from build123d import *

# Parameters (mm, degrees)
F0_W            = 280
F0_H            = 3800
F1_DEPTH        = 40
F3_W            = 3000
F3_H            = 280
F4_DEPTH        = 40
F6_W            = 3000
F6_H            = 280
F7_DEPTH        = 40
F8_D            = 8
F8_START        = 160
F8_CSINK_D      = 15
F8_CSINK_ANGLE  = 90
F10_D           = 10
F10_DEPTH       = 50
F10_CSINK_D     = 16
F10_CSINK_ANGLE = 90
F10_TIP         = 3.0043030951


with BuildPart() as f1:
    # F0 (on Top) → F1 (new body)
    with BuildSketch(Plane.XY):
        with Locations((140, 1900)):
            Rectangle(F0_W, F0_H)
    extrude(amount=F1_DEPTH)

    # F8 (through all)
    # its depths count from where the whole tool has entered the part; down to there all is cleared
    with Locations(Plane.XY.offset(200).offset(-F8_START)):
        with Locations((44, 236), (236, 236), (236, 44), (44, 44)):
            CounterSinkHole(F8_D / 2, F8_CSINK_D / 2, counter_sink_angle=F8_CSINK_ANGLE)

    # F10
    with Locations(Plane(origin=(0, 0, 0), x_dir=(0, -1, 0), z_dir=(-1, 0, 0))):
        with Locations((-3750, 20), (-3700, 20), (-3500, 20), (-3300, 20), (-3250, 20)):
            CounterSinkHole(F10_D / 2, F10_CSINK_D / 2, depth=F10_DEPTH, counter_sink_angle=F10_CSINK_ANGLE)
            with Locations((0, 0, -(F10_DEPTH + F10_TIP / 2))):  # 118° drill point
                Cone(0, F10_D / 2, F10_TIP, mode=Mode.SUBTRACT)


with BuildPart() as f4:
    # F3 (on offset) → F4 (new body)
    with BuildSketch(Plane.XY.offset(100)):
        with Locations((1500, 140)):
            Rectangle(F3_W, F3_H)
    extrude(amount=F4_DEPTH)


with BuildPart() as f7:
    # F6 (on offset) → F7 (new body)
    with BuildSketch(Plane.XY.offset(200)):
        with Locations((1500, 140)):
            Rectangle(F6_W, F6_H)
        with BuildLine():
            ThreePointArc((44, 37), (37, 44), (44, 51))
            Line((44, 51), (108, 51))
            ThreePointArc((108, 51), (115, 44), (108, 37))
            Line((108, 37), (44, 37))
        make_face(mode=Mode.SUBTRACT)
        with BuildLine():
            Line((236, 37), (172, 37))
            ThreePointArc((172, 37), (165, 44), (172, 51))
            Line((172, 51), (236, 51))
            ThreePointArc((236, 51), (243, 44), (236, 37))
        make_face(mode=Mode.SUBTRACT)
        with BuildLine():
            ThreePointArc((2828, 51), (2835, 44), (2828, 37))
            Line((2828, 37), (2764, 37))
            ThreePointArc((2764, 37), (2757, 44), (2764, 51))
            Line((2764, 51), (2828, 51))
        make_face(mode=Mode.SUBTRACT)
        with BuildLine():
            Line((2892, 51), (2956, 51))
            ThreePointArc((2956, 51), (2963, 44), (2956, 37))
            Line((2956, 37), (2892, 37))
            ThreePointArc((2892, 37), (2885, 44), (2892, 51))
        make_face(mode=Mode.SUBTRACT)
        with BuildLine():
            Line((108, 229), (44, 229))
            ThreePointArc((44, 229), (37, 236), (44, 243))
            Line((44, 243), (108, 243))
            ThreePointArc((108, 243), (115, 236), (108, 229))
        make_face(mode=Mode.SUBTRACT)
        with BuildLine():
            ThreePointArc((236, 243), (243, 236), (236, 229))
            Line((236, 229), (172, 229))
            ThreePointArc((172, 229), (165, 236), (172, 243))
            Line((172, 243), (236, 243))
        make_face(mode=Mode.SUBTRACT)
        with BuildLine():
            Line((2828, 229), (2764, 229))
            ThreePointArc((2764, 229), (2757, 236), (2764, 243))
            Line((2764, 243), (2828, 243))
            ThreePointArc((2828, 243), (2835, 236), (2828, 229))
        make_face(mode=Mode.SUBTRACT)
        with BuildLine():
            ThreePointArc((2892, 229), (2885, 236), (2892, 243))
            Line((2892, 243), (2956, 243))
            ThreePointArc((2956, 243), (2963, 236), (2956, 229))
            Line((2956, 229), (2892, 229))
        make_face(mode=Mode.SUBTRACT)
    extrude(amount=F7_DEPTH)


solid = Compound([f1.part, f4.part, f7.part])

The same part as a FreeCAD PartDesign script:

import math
import FreeCAD as App
import Part
import Sketcher

V = App.Vector


def add_polygon(sketch, points):
    """Adds a closed chain of lines whose ends are joined by coincident constraints."""
    first, n = sketch.GeometryCount, len(points)
    for a, b in zip(points, points[1:] + points[:1]):
        sketch.addGeometry(Part.LineSegment(App.Vector(*a, 0), App.Vector(*b, 0)), False)
    for i in range(n):
        sketch.addConstraint(Sketcher.Constraint("Coincident", first + i, 2, first + (i + 1) % n, 1))

doc = App.newDocument("Part")
body = doc.addObject("PartDesign::Body", "Body")

# Sketch on XY plane
sketch1 = doc.addObject("Sketcher::SketchObject", "Sketch")
body.addObject(sketch1)
sketch1.AttachmentSupport = (doc.XY_Plane, [""])
sketch1.MapMode = "FlatFace"
add_polygon(sketch1, [(0, 3800), (0, 0), (280, 0), (280, 3800)])  # lines 0-3
sketch1.addConstraint([
    Sketcher.Constraint("Vertical", 0),
    Sketcher.Constraint("Horizontal", 1),
    Sketcher.Constraint("Vertical", 2),
    Sketcher.Constraint("Horizontal", 3),
    Sketcher.Constraint("Coincident", 0, 2, -1, 1),
    Sketcher.Constraint("DistanceX", 1, 1, 1, 2, 280.0),
    Sketcher.Constraint("DistanceY", 0, 2, 0, 1, 3800.0),
])
pad1 = doc.addObject("PartDesign::Pad", "Pad")
body.addObject(pad1)
pad1.Profile = sketch1
pad1.Length = 40

# Sketch on XY plane
sketch2 = doc.addObject("Sketcher::SketchObject", "Sketch001")
body.addObject(sketch2)
sketch2.AttachmentSupport = (doc.XY_Plane, [""])
sketch2.MapMode = "FlatFace"
sketch2.AttachmentOffset = App.Placement(V(0, 0, 40), App.Rotation())
sketch2.addGeometry([
    Part.Circle(V(44, 236, 0), V(0, 0, 1), 4),
    Part.Circle(V(236, 236, 0), V(0, 0, 1), 4),
    Part.Circle(V(236, 44, 0), V(0, 0, 1), 4),
    Part.Circle(V(44, 44, 0), V(0, 0, 1), 4),
], False)
sketch2.addConstraint([
    Sketcher.Constraint("Equal", 0, 1),
    Sketcher.Constraint("Equal", 1, 2),
    Sketcher.Constraint("Equal", 2, 3),
    Sketcher.Constraint("Horizontal", 0, 3, 1, 3),
    Sketcher.Constraint("Horizontal", 2, 3, 3, 3),
    Sketcher.Constraint("Vertical", 1, 3, 2, 3),
    Sketcher.Constraint("Vertical", 0, 3, 3, 3),
    Sketcher.Constraint("Diameter", 0, 8.0),
    Sketcher.Constraint("DistanceX", -1, 1, 0, 3, 44.0),
    Sketcher.Constraint("DistanceY", -1, 1, 0, 3, 236.0),
    Sketcher.Constraint("DistanceX", -1, 1, 1, 3, 236.0),
    Sketcher.Constraint("DistanceY", -1, 1, 2, 3, 44.0),
])
doc.recompute()
hole = doc.addObject("PartDesign::Hole", "Hole")
body.addObject(hole)
hole.Profile = sketch2
hole.ThreadType = "None"
hole.Diameter = 8
hole.DepthType = "ThroughAll"
hole.HoleCutType = "Countersink"
hole.HoleCutDiameter = 15
hole.HoleCutCountersinkAngle = 90

# Sketch on YZ plane
sketch3 = doc.addObject("Sketcher::SketchObject", "Sketch002")
body.addObject(sketch3)
sketch3.AttachmentSupport = (doc.YZ_Plane, [""])
sketch3.MapMode = "FlatFace"
sketch3.addGeometry([
    Part.Circle(V(3750, 20, 0), V(0, 0, 1), 5),  # 0
    Part.Circle(V(3700, 20, 0), V(0, 0, 1), 5),  # 1
    Part.Circle(V(3500, 20, 0), V(0, 0, 1), 5),  # 2
    Part.Circle(V(3300, 20, 0), V(0, 0, 1), 5),  # 3
    Part.Circle(V(3250, 20, 0), V(0, 0, 1), 5),  # 4
], False)
sketch3.addConstraint([
    Sketcher.Constraint("Equal", 0, 1),
    Sketcher.Constraint("Equal", 1, 2),
    Sketcher.Constraint("Equal", 2, 3),
    Sketcher.Constraint("Equal", 3, 4),
    Sketcher.Constraint("Horizontal", 0, 3, 1, 3),
    Sketcher.Constraint("Horizontal", 1, 3, 2, 3),
    Sketcher.Constraint("Horizontal", 2, 3, 3, 3),
    Sketcher.Constraint("Horizontal", 3, 3, 4, 3),
    Sketcher.Constraint("Diameter", 0, 10.0),
    Sketcher.Constraint("DistanceX", -1, 1, 0, 3, 3750.0),
    Sketcher.Constraint("DistanceY", -1, 1, 0, 3, 20.0),
    Sketcher.Constraint("DistanceX", -1, 1, 1, 3, 3700.0),
    Sketcher.Constraint("DistanceX", -1, 1, 2, 3, 3500.0),
    Sketcher.Constraint("DistanceX", -1, 1, 3, 3, 3300.0),
    Sketcher.Constraint("DistanceX", -1, 1, 4, 3, 3250.0),
])
doc.recompute()
hole2 = doc.addObject("PartDesign::Hole", "Hole001")
body.addObject(hole2)
hole2.Profile = sketch3
hole2.ThreadType = "None"
hole2.Diameter = 10
hole2.DepthType = "Dimension"
hole2.Depth = 50
hole2.DrillPoint = "Angled"
hole2.DrillPointAngle = 118
hole2.HoleCutType = "Countersink"
hole2.HoleCutDiameter = 16
hole2.HoleCutCountersinkAngle = 90
hole2.Reversed = True
body2 = doc.addObject("PartDesign::Body", "Body001")

# Sketch on XY plane
sketch4 = doc.addObject("Sketcher::SketchObject", "Sketch003")
body2.addObject(sketch4)
sketch4.AttachmentSupport = (doc.getObject("XY_Plane001"), [""])
sketch4.MapMode = "FlatFace"
sketch4.AttachmentOffset = App.Placement(V(0, 0, 100), App.Rotation())
add_polygon(sketch4, [(0, 280), (0, 0), (3000, 0), (3000, 280)])  # lines 0-3
sketch4.addConstraint([
    Sketcher.Constraint("Vertical", 0),
    Sketcher.Constraint("Horizontal", 1),
    Sketcher.Constraint("Vertical", 2),
    Sketcher.Constraint("Horizontal", 3),
    Sketcher.Constraint("Coincident", 0, 2, -1, 1),
    Sketcher.Constraint("DistanceX", 1, 1, 1, 2, 3000.0),
    Sketcher.Constraint("DistanceY", 0, 2, 0, 1, 280.0),
])
pad2 = doc.addObject("PartDesign::Pad", "Pad001")
body2.addObject(pad2)
pad2.Profile = sketch4
pad2.Length = 40
body3 = doc.addObject("PartDesign::Body", "Body002")

# Sketch on XY plane
sketch5 = doc.addObject("Sketcher::SketchObject", "Sketch004")
body3.addObject(sketch5)
sketch5.AttachmentSupport = (doc.getObject("XY_Plane002"), [""])
sketch5.MapMode = "FlatFace"
sketch5.AttachmentOffset = App.Placement(V(0, 0, 200), App.Rotation())
add_polygon(sketch5, [(0, 280), (0, 0), (3000, 0), (3000, 280)])  # lines 0-3
sketch5.addGeometry(Part.LineSegment(V(108, 37, 0), V(44, 37, 0)), False)  # 4
sketch5.addGeometry(Part.ArcOfCircle(Part.Circle(V(44, 44, 0), V(0, 0, 1), 7), math.radians(90), math.radians(270)), False)  # 5
sketch5.addGeometry(Part.LineSegment(V(44, 51, 0), V(108, 51, 0)), False)  # 6
sketch5.addGeometry(Part.ArcOfCircle(Part.Circle(V(108, 44, 0), V(0, 0, 1), 7), math.radians(-90), math.radians(90)), False)  # 7
sketch5.addGeometry(Part.ArcOfCircle(Part.Circle(V(236, 44, 0), V(0, 0, 1), 7), math.radians(-90), math.radians(90)), False)  # 8
sketch5.addGeometry(Part.LineSegment(V(236, 37, 0), V(172, 37, 0)), False)  # 9
sketch5.addGeometry(Part.ArcOfCircle(Part.Circle(V(172, 44, 0), V(0, 0, 1), 7), math.radians(90), math.radians(270)), False)  # 10
sketch5.addGeometry(Part.LineSegment(V(172, 51, 0), V(236, 51, 0)), False)  # 11
sketch5.addGeometry(Part.LineSegment(V(2764, 51, 0), V(2828, 51, 0)), False)  # 12
sketch5.addGeometry(Part.ArcOfCircle(Part.Circle(V(2828, 44, 0), V(0, 0, 1), 7), math.radians(-90), math.radians(90)), False)  # 13
sketch5.addGeometry(Part.LineSegment(V(2828, 37, 0), V(2764, 37, 0)), False)  # 14
sketch5.addGeometry(Part.ArcOfCircle(Part.Circle(V(2764, 44, 0), V(0, 0, 1), 7), math.radians(90), math.radians(270)), False)  # 15
sketch5.addGeometry(Part.ArcOfCircle(Part.Circle(V(2892, 44, 0), V(0, 0, 1), 7), math.radians(90), math.radians(270)), False)  # 16
sketch5.addGeometry(Part.LineSegment(V(2892, 51, 0), V(2956, 51, 0)), False)  # 17
sketch5.addGeometry(Part.ArcOfCircle(Part.Circle(V(2956, 44, 0), V(0, 0, 1), 7), math.radians(-90), math.radians(90)), False)  # 18
sketch5.addGeometry(Part.LineSegment(V(2956, 37, 0), V(2892, 37, 0)), False)  # 19
sketch5.addGeometry(Part.ArcOfCircle(Part.Circle(V(108, 236, 0), V(0, 0, 1), 7), math.radians(-90), math.radians(90)), False)  # 20
sketch5.addGeometry(Part.LineSegment(V(108, 229, 0), V(44, 229, 0)), False)  # 21
sketch5.addGeometry(Part.ArcOfCircle(Part.Circle(V(44, 236, 0), V(0, 0, 1), 7), math.radians(90), math.radians(270)), False)  # 22
sketch5.addGeometry(Part.LineSegment(V(44, 243, 0), V(108, 243, 0)), False)  # 23
sketch5.addGeometry(Part.LineSegment(V(172, 243, 0), V(236, 243, 0)), False)  # 24
sketch5.addGeometry(Part.ArcOfCircle(Part.Circle(V(236, 236, 0), V(0, 0, 1), 7), math.radians(-90), math.radians(90)), False)  # 25
sketch5.addGeometry(Part.LineSegment(V(236, 229, 0), V(172, 229, 0)), False)  # 26
sketch5.addGeometry(Part.ArcOfCircle(Part.Circle(V(172, 236, 0), V(0, 0, 1), 7), math.radians(90), math.radians(270)), False)  # 27
sketch5.addGeometry(Part.ArcOfCircle(Part.Circle(V(2828, 236, 0), V(0, 0, 1), 7), math.radians(-90), math.radians(90)), False)  # 28
sketch5.addGeometry(Part.LineSegment(V(2828, 229, 0), V(2764, 229, 0)), False)  # 29
sketch5.addGeometry(Part.ArcOfCircle(Part.Circle(V(2764, 236, 0), V(0, 0, 1), 7), math.radians(90), math.radians(270)), False)  # 30
sketch5.addGeometry(Part.LineSegment(V(2764, 243, 0), V(2828, 243, 0)), False)  # 31
sketch5.addGeometry(Part.LineSegment(V(2956, 229, 0), V(2892, 229, 0)), False)  # 32
sketch5.addGeometry(Part.ArcOfCircle(Part.Circle(V(2892, 236, 0), V(0, 0, 1), 7), math.radians(90), math.radians(270)), False)  # 33
sketch5.addGeometry(Part.LineSegment(V(2892, 243, 0), V(2956, 243, 0)), False)  # 34
sketch5.addGeometry(Part.ArcOfCircle(Part.Circle(V(2956, 236, 0), V(0, 0, 1), 7), math.radians(-90), math.radians(90)), False)  # 35
sketch5.addConstraint([
    Sketcher.Constraint("Tangent", 4, 2, 5, 2),
    Sketcher.Constraint("Tangent", 5, 1, 6, 1),
    Sketcher.Constraint("Tangent", 6, 2, 7, 2),
    Sketcher.Constraint("Tangent", 7, 1, 4, 1),
    Sketcher.Constraint("Tangent", 8, 1, 9, 1),
    Sketcher.Constraint("Tangent", 9, 2, 10, 2),
    Sketcher.Constraint("Tangent", 10, 1, 11, 1),
    Sketcher.Constraint("Tangent", 11, 2, 8, 2),
    Sketcher.Constraint("Tangent", 12, 2, 13, 2),
    Sketcher.Constraint("Tangent", 13, 1, 14, 1),
    Sketcher.Constraint("Tangent", 14, 2, 15, 2),
    Sketcher.Constraint("Tangent", 15, 1, 12, 1),
    Sketcher.Constraint("Tangent", 16, 1, 17, 1),
    Sketcher.Constraint("Tangent", 17, 2, 18, 2),
    Sketcher.Constraint("Tangent", 18, 1, 19, 1),
    Sketcher.Constraint("Tangent", 19, 2, 16, 2),
    Sketcher.Constraint("Tangent", 20, 1, 21, 1),
    Sketcher.Constraint("Tangent", 21, 2, 22, 2),
    Sketcher.Constraint("Tangent", 22, 1, 23, 1),
    Sketcher.Constraint("Tangent", 23, 2, 20, 2),
    Sketcher.Constraint("Tangent", 24, 2, 25, 2),
    Sketcher.Constraint("Tangent", 25, 1, 26, 1),
    Sketcher.Constraint("Tangent", 26, 2, 27, 2),
    Sketcher.Constraint("Tangent", 27, 1, 24, 1),
    Sketcher.Constraint("Tangent", 28, 1, 29, 1),
    Sketcher.Constraint("Tangent", 29, 2, 30, 2),
    Sketcher.Constraint("Tangent", 30, 1, 31, 1),
    Sketcher.Constraint("Tangent", 31, 2, 28, 2),
    Sketcher.Constraint("Tangent", 32, 2, 33, 2),
    Sketcher.Constraint("Tangent", 33, 1, 34, 1),
    Sketcher.Constraint("Tangent", 34, 2, 35, 2),
    Sketcher.Constraint("Tangent", 35, 1, 32, 1),
    Sketcher.Constraint("Vertical", 0),
    Sketcher.Constraint("Horizontal", 1),
    Sketcher.Constraint("Vertical", 2),
    Sketcher.Constraint("Horizontal", 3),
    Sketcher.Constraint("Horizontal", 4),
    Sketcher.Constraint("Horizontal", 6),
    Sketcher.Constraint("Horizontal", 9),
    Sketcher.Constraint("Horizontal", 11),
    Sketcher.Constraint("Horizontal", 12),
    Sketcher.Constraint("Horizontal", 14),
    Sketcher.Constraint("Horizontal", 17),
    Sketcher.Constraint("Horizontal", 19),
    Sketcher.Constraint("Horizontal", 21),
    Sketcher.Constraint("Horizontal", 23),
    Sketcher.Constraint("Horizontal", 24),
    Sketcher.Constraint("Horizontal", 26),
    Sketcher.Constraint("Horizontal", 29),
    Sketcher.Constraint("Horizontal", 31),
    Sketcher.Constraint("Horizontal", 32),
    Sketcher.Constraint("Horizontal", 34),
    Sketcher.Constraint("Coincident", 0, 2, -1, 1),
    Sketcher.Constraint("Equal", 7, 8),
    Sketcher.Constraint("Equal", 10, 13),
    Sketcher.Constraint("Equal", 15, 16),
    Sketcher.Constraint("Equal", 18, 20),
    Sketcher.Constraint("Equal", 22, 25),
    Sketcher.Constraint("Equal", 27, 28),
    Sketcher.Constraint("Equal", 30, 33),
    Sketcher.Constraint("Horizontal", 7, 3, 8, 3),
    Sketcher.Constraint("Horizontal", 10, 3, 13, 3),
    Sketcher.Constraint("Horizontal", 15, 3, 16, 3),
    Sketcher.Constraint("Horizontal", 22, 3, 25, 3),
    Sketcher.Constraint("Horizontal", 27, 3, 28, 3),
    Sketcher.Constraint("Horizontal", 30, 3, 33, 3),
    Sketcher.Constraint("Vertical", 7, 3, 20, 3),
    Sketcher.Constraint("Vertical", 5, 3, 22, 3),
    Sketcher.Constraint("Vertical", 8, 3, 25, 3),
    Sketcher.Constraint("Vertical", 10, 3, 27, 3),
    Sketcher.Constraint("Vertical", 13, 3, 28, 3),
    Sketcher.Constraint("Vertical", 15, 3, 30, 3),
    Sketcher.Constraint("Vertical", 16, 3, 33, 3),
    Sketcher.Constraint("Vertical", 18, 3, 35, 3),
    Sketcher.Constraint("Equal", 6, 9),
    Sketcher.Constraint("Equal", 11, 12),
    Sketcher.Constraint("Equal", 14, 17),
    Sketcher.Constraint("Radius", 5, 7.0),
    Sketcher.Constraint("DistanceX", 1, 1, 1, 2, 3000.0),
    Sketcher.Constraint("DistanceX", 4, 2, 4, 1, 64.0),
    Sketcher.Constraint("DistanceY", 0, 2, 0, 1, 280.0),
    Sketcher.Constraint("DistanceX", -1, 1, 5, 3, 44.0),
    Sketcher.Constraint("DistanceY", -1, 1, 5, 3, 44.0),
    Sketcher.Constraint("DistanceX", -1, 1, 8, 3, 236.0),
    Sketcher.Constraint("DistanceX", -1, 1, 13, 3, 2828.0),
    Sketcher.Constraint("DistanceX", -1, 1, 16, 3, 2892.0),
    Sketcher.Constraint("DistanceY", -1, 1, 20, 3, 236.0),
])
pad3 = doc.addObject("PartDesign::Pad", "Pad002")
body3.addObject(pad3)
pad3.Profile = sketch5
pad3.Length = 40

doc.recompute()
